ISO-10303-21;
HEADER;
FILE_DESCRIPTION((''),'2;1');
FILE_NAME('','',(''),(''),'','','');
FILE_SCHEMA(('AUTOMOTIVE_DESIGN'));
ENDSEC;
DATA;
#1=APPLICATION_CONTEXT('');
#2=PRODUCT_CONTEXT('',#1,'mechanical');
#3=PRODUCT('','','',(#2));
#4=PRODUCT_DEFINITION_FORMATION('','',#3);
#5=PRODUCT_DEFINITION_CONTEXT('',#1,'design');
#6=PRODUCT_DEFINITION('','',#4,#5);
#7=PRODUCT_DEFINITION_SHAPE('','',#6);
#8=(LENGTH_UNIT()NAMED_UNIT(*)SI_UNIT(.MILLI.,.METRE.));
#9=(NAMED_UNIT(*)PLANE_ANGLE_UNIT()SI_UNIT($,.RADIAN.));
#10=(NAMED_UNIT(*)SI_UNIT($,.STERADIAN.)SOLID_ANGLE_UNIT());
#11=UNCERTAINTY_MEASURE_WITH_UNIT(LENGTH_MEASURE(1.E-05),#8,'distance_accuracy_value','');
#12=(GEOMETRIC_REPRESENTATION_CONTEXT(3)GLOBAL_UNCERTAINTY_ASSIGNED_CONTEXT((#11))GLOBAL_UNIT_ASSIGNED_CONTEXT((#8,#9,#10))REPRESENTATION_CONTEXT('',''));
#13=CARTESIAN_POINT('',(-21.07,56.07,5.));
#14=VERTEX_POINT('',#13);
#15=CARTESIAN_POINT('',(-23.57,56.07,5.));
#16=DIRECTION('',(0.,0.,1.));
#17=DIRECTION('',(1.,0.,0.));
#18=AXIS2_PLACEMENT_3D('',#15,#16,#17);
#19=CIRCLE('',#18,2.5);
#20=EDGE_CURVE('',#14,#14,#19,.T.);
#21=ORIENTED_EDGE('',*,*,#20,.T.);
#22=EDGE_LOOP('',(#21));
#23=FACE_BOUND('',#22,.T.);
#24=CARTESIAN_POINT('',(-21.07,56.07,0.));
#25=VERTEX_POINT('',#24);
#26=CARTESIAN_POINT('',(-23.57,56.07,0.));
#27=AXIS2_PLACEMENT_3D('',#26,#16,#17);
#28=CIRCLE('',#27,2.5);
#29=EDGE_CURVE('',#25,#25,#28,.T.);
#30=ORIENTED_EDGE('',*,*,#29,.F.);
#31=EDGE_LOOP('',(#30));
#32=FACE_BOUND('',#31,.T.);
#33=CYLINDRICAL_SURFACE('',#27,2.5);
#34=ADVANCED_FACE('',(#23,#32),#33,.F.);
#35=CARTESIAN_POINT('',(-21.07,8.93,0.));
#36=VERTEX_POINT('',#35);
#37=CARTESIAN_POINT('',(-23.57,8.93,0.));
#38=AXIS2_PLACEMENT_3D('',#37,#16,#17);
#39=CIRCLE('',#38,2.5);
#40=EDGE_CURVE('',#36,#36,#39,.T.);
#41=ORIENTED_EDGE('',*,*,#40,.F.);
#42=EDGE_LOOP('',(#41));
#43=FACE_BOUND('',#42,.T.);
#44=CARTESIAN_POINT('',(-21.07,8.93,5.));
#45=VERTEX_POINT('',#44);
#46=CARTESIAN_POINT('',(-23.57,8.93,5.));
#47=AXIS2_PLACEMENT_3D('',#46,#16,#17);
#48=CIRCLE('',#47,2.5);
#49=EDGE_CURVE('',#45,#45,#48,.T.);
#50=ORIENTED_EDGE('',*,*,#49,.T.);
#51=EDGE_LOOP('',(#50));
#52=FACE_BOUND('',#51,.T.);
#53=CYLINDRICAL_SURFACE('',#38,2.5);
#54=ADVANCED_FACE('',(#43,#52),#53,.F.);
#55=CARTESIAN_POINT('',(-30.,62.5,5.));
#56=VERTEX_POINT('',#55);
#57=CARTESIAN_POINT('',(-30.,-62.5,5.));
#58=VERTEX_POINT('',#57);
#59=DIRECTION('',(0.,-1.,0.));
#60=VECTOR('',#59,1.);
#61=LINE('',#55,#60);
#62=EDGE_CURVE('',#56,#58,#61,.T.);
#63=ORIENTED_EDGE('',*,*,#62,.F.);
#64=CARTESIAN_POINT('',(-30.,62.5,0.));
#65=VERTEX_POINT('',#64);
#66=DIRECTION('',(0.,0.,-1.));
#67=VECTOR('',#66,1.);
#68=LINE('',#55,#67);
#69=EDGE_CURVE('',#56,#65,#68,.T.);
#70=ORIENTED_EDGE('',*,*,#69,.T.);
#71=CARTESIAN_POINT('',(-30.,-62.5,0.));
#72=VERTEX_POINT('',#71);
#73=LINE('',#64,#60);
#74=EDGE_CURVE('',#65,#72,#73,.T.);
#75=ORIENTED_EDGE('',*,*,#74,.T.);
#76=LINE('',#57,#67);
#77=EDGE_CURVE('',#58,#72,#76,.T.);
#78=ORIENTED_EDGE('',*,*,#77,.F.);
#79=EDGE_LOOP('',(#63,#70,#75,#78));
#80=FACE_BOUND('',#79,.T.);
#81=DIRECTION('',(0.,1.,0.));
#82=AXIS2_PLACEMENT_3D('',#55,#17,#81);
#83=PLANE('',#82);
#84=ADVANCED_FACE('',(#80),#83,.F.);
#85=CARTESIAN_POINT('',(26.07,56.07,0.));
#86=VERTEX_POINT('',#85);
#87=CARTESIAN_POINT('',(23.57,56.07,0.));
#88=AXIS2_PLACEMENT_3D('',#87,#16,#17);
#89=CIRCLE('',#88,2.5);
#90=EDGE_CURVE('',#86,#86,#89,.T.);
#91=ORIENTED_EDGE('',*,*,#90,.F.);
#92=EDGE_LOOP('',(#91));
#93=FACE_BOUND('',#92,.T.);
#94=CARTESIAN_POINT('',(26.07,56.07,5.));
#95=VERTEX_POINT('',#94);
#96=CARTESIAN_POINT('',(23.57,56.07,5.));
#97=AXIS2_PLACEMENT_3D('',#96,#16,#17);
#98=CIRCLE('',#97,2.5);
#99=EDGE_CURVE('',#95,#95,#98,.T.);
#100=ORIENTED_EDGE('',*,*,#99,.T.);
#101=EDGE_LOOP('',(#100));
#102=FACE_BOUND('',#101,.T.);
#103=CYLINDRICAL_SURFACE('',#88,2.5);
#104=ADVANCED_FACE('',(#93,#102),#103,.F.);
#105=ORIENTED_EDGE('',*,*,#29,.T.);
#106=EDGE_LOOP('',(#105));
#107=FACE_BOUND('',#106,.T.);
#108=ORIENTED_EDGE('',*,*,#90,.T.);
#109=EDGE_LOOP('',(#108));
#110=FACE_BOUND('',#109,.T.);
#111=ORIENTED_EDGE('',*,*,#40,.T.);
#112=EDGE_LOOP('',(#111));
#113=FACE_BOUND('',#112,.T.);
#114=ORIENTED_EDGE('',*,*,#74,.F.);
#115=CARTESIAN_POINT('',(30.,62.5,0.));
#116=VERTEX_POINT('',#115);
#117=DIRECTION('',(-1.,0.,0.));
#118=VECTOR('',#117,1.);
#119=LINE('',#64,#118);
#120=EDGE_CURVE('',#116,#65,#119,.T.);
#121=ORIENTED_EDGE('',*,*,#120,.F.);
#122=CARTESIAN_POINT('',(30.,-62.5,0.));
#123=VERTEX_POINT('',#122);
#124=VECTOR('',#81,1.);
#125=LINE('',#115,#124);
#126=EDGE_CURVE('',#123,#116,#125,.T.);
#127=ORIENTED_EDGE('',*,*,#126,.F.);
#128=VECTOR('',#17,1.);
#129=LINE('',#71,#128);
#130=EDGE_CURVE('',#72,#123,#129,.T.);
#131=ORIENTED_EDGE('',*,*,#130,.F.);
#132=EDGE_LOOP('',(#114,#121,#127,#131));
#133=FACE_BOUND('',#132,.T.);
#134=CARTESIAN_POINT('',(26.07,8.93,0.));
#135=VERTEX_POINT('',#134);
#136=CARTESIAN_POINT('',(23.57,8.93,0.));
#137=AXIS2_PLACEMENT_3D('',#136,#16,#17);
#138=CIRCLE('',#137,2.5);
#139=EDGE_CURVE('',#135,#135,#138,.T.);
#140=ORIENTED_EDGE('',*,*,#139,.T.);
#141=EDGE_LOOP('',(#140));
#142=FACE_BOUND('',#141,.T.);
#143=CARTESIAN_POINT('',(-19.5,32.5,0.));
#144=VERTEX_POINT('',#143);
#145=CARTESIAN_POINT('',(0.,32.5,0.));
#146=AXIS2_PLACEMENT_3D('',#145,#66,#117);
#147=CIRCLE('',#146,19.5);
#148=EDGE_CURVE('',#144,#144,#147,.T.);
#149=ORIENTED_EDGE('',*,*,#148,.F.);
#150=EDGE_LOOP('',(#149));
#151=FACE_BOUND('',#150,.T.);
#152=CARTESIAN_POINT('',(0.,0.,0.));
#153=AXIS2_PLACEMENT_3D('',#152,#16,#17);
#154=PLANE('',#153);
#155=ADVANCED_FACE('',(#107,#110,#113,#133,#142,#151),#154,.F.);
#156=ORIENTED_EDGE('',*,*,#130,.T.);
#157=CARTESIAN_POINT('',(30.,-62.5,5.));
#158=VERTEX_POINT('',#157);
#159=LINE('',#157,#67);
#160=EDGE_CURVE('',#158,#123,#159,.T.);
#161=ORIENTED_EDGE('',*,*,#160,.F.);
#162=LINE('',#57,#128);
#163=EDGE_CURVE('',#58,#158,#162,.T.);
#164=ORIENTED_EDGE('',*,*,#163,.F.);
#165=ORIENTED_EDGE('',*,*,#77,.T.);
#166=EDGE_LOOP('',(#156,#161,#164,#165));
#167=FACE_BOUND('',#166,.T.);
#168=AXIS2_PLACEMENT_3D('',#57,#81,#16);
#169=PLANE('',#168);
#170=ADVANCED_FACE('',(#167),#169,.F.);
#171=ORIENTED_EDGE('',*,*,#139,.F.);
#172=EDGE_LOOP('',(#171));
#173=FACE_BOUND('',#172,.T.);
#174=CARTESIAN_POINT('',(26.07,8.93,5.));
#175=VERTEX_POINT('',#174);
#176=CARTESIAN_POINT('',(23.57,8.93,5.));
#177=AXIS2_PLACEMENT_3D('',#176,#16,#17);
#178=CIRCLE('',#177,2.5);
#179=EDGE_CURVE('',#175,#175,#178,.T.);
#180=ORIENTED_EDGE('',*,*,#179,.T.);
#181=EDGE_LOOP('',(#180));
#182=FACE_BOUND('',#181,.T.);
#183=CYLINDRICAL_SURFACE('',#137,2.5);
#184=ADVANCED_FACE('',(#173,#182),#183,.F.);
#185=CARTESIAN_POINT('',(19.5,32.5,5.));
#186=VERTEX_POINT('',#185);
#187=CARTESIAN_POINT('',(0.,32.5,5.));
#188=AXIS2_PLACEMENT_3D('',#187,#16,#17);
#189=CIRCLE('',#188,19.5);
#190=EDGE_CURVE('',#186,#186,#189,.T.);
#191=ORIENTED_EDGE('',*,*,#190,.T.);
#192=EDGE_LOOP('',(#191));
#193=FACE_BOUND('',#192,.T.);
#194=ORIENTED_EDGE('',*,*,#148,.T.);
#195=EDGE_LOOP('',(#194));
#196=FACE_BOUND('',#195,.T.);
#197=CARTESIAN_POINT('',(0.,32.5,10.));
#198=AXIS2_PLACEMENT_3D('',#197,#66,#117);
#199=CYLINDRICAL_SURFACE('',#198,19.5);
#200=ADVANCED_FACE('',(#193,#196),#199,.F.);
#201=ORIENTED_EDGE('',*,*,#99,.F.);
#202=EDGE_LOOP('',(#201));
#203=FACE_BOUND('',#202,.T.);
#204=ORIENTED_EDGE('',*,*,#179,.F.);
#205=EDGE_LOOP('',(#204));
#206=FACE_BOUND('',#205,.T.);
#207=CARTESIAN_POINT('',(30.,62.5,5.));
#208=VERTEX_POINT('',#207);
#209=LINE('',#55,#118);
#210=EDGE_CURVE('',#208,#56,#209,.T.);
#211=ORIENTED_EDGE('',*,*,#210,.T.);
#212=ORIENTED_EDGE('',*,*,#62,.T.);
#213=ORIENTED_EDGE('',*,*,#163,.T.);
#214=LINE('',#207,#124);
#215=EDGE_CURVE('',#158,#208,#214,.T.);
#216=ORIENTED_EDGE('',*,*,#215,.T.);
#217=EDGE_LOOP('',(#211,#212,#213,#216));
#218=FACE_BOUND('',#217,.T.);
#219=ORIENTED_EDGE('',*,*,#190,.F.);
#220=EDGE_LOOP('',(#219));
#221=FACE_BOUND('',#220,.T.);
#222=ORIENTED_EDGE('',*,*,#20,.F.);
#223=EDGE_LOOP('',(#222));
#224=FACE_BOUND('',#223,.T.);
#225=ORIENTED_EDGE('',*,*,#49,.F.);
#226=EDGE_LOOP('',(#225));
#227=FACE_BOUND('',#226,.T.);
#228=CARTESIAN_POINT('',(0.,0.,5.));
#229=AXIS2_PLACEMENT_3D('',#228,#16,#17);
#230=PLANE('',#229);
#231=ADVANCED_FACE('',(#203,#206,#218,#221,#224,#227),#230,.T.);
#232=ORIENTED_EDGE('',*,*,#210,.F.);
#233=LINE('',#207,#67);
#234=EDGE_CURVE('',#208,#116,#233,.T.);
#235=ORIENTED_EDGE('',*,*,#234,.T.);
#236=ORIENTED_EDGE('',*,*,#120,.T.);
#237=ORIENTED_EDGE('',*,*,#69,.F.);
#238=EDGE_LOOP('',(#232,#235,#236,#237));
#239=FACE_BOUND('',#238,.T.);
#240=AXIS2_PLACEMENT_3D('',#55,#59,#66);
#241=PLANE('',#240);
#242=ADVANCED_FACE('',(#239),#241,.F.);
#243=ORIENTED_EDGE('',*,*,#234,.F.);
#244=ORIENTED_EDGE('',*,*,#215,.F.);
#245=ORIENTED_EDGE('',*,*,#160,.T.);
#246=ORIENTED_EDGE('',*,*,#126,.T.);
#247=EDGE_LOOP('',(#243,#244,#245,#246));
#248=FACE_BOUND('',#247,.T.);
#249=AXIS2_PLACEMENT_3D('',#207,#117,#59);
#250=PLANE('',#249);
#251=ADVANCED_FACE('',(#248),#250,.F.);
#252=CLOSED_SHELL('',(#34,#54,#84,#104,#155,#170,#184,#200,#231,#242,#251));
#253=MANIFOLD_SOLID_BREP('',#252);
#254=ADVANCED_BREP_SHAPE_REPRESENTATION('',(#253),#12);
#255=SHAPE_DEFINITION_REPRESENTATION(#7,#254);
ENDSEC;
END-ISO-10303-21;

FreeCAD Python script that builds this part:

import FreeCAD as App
import Part
import Sketcher

V = App.Vector
Q = App.Units.Quantity

doc = App.newDocument("Part")
body = doc.addObject("PartDesign::Body", "Body")

sketch1 = body.newObject("Sketcher::SketchObject", "Sketch")
sketch1.AttachmentSupport = (doc.getObject("XY_Plane"), [""])
sketch1.MapMode = "FlatFace"
sketch1.addGeometry(Part.LineSegment(V(-30, 62.5, 0), V(-30, -62.5, 0)), False)
sketch1.addGeometry(Part.LineSegment(V(-30, -62.5, 0), V(30, -62.5, 0)), False)
sketch1.addGeometry(Part.LineSegment(V(30, -62.5, 0), V(30, 62.5, 0)), False)
sketch1.addGeometry(Part.LineSegment(V(30, 62.5, 0), V(-30, 62.5, 0)), False)
sketch1.addConstraint(Sketcher.Constraint("Coincident", 0, 2, 1, 1))
sketch1.addConstraint(Sketcher.Constraint("Coincident", 1, 2, 2, 1))
sketch1.addConstraint(Sketcher.Constraint("Coincident", 2, 2, 3, 1))
sketch1.addConstraint(Sketcher.Constraint("Coincident", 3, 2, 0, 1))
sketch1.addConstraint(Sketcher.Constraint("Vertical", 0))
sketch1.addConstraint(Sketcher.Constraint("Horizontal", 1))
sketch1.addConstraint(Sketcher.Constraint("Vertical", 2))
sketch1.addConstraint(Sketcher.Constraint("Horizontal", 3))
sketch1.addConstraint(Sketcher.Constraint("Symmetric", 0, 2, 2, 2, -1, 1))
sketch1.addConstraint(Sketcher.Constraint("DistanceX", 1, 1, 1, 2, Q("60 mm")))
sketch1.addConstraint(Sketcher.Constraint("DistanceY", 0, 2, 0, 1, Q("125 mm")))
pad1 = body.newObject("PartDesign::Pad", "Pad")
pad1.Profile = sketch1
pad1.Length = 5

sketch2 = body.newObject("Sketcher::SketchObject", "Sketch001")
sketch2.AttachmentSupport = (doc.getObject("XY_Plane"), [""])
sketch2.MapMode = "FlatFace"
sketch2.addGeometry(Part.Circle(V(0, 32.5, 0), V(0, 0, 1), 19.5), False)
sketch2.addConstraint(Sketcher.Constraint("PointOnObject", 0, 3, -2))
sketch2.addConstraint(Sketcher.Constraint("Diameter", 0, Q("39 mm")))
sketch2.addConstraint(Sketcher.Constraint("DistanceY", -1, 1, 0, 3, Q("32.5 mm")))
pocket1 = body.newObject("PartDesign::Pocket", "Pocket")
pocket1.Profile = sketch2
pocket1.Length = 10
pocket1.Reversed = True

sketch3 = body.newObject("Sketcher::SketchObject", "Sketch002")
sketch3.AttachmentSupport = (doc.getObject("XY_Plane"), [""])
sketch3.MapMode = "FlatFace"
sketch3.AttachmentOffset = App.Placement(V(0, 0, 5), App.Rotation())
sketch3.addGeometry(Part.Circle(V(23.57, 56.07, 0), V(0, 0, 1), 2.5), False)
sketch3.addGeometry(Part.Circle(V(23.57, 8.93, 0), V(0, 0, 1), 2.5), False)
sketch3.addGeometry(Part.Circle(V(-23.57, 8.93, 0), V(0, 0, 1), 2.5), False)
sketch3.addGeometry(Part.Circle(V(-23.57, 56.07, 0), V(0, 0, 1), 2.5), False)
sketch3.addConstraint(Sketcher.Constraint("Equal", 0, 1))
sketch3.addConstraint(Sketcher.Constraint("Equal", 1, 2))
sketch3.addConstraint(Sketcher.Constraint("Equal", 2, 3))
sketch3.addConstraint(Sketcher.Constraint("Symmetric", 1, 3, 2, 3, -2))
sketch3.addConstraint(Sketcher.Constraint("Symmetric", 0, 3, 3, 3, -2))
sketch3.addConstraint(Sketcher.Constraint("Vertical", 0, 3, 1, 3))
sketch3.addConstraint(Sketcher.Constraint("Diameter", 0, Q("5 mm")))
sketch3.addConstraint(Sketcher.Constraint("DistanceX", -1, 1, 0, 3, Q("23.57 mm")))
sketch3.addConstraint(Sketcher.Constraint("DistanceY", -1, 1, 0, 3, Q("56.07 mm")))
sketch3.addConstraint(Sketcher.Constraint("DistanceY", -1, 1, 1, 3, Q("8.93 mm")))
pocket2 = body.newObject("PartDesign::Pocket", "Pocket001")
pocket2.Profile = sketch3
pocket2.Length = 5

doc.recompute()
